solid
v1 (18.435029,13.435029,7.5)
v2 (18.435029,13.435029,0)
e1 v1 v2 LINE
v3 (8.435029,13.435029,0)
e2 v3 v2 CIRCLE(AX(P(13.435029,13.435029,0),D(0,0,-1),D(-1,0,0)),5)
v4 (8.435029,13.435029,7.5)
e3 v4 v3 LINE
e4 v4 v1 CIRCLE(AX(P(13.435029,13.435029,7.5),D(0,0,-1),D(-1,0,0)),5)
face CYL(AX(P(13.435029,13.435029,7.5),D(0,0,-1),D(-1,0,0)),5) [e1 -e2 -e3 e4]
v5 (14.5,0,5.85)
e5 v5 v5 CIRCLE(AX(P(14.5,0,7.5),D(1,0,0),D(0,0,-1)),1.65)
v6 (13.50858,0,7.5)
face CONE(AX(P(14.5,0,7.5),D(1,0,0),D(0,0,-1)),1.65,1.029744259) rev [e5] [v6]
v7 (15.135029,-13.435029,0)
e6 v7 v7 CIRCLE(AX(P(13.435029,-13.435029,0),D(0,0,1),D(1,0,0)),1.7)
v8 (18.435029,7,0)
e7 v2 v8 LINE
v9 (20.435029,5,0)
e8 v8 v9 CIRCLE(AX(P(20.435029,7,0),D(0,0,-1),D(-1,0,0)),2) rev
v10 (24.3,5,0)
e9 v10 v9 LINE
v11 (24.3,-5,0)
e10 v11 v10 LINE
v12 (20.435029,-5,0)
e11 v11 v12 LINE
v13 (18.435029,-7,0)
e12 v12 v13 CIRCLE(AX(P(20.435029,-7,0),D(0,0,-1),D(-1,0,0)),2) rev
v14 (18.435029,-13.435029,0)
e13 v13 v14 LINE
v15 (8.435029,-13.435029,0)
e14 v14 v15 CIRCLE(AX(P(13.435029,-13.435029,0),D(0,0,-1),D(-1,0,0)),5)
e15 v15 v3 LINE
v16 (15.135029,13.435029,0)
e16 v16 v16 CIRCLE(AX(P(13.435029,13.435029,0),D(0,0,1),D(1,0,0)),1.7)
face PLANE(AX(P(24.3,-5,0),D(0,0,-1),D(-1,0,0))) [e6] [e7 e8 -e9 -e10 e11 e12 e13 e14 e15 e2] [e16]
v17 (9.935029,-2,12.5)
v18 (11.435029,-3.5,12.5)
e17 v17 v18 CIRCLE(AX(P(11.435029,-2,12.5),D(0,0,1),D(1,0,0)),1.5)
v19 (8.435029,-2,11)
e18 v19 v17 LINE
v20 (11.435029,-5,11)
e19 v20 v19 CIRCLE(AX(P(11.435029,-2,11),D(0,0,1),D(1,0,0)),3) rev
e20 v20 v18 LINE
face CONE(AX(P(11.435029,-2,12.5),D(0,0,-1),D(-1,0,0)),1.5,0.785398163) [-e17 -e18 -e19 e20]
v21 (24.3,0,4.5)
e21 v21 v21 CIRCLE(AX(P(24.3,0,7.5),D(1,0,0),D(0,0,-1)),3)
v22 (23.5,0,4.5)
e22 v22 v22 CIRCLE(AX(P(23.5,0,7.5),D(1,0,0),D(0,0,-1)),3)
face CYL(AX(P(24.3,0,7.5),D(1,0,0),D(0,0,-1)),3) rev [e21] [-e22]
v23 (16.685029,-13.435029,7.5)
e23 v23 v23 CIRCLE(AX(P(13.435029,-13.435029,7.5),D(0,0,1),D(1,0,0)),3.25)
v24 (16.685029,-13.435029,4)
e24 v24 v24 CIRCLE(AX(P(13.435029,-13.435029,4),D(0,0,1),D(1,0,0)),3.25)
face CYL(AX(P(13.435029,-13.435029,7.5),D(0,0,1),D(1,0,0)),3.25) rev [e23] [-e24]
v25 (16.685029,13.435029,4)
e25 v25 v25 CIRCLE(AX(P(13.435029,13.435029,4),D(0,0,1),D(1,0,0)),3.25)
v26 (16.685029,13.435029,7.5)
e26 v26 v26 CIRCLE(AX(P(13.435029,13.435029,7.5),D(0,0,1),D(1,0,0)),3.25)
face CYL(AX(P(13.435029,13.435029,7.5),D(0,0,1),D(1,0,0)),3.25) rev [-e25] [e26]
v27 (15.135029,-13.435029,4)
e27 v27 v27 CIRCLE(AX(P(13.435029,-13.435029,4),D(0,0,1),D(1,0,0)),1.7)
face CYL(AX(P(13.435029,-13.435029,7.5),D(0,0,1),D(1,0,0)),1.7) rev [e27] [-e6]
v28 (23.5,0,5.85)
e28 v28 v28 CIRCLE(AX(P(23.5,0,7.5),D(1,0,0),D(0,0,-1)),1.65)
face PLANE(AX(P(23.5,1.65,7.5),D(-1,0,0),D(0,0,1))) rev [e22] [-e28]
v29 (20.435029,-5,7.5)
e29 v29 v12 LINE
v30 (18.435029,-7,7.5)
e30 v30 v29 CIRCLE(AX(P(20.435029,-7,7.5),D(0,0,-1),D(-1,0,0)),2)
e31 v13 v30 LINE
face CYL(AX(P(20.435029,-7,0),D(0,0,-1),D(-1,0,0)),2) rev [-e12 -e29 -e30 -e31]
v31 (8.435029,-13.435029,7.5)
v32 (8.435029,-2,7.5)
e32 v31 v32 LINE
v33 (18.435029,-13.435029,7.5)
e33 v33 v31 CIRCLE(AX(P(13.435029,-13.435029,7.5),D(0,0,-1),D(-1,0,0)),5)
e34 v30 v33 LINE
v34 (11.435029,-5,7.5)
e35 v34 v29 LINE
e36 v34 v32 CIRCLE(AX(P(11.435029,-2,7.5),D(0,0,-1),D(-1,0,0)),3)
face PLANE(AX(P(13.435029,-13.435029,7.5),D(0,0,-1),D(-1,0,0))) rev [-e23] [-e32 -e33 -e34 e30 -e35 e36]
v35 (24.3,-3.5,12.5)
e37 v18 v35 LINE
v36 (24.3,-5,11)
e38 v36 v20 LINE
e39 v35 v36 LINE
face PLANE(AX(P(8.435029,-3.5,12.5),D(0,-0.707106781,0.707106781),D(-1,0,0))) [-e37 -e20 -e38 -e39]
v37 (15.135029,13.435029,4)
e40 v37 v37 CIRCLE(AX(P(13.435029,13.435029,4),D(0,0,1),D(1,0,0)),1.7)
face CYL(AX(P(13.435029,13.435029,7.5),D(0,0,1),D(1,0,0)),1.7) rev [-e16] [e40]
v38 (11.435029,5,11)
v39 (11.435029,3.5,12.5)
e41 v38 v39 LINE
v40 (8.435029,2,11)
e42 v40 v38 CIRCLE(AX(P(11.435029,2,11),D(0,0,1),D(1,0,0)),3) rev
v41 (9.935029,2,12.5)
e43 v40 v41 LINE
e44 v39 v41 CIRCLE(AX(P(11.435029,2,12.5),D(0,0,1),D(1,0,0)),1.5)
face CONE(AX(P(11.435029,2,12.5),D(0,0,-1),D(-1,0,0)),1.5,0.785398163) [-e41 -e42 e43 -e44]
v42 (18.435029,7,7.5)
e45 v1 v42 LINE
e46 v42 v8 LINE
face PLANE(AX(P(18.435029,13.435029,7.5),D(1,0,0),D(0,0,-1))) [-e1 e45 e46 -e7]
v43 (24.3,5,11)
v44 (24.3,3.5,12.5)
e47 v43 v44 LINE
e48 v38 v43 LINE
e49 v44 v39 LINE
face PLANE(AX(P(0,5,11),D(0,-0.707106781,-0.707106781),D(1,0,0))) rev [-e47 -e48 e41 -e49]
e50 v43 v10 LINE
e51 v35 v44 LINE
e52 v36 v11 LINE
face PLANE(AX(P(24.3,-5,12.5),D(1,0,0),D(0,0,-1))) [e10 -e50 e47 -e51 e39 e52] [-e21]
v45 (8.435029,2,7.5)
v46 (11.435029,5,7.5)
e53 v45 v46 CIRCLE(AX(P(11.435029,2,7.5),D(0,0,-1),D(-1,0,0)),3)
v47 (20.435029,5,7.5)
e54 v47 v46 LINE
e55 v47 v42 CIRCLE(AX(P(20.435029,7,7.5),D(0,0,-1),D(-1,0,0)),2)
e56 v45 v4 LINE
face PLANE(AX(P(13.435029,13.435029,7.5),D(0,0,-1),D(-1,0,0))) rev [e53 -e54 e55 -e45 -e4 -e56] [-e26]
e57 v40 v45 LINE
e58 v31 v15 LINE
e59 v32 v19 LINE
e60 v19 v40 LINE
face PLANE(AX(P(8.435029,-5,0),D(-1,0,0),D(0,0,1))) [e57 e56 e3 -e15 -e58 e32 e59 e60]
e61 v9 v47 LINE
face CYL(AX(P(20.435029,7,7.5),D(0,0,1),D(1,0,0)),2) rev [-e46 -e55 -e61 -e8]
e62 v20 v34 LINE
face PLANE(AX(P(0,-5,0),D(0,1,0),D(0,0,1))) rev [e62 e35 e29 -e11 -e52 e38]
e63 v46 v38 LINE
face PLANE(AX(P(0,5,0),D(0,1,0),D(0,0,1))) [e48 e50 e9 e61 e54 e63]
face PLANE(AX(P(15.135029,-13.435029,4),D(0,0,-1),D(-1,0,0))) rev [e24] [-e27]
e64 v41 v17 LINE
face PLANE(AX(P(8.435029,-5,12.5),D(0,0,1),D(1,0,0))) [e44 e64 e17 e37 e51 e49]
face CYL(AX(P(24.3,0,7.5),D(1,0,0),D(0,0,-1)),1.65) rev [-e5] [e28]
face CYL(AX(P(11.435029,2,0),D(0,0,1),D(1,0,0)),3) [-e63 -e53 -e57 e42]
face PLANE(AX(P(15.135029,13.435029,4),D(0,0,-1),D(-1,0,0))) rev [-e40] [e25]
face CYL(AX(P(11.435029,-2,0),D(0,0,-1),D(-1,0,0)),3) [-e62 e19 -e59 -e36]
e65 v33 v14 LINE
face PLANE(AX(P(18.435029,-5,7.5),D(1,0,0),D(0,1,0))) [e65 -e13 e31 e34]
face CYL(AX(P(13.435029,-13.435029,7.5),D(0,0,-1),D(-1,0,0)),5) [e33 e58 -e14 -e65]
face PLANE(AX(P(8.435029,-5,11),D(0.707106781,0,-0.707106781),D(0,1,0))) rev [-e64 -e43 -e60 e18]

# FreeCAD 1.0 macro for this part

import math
import FreeCAD as App
import Part
import Sketcher

V = App.Vector
Q = App.Units.Quantity


def edges_at(feature, points):
    """Names of the edges that pass closest to the given points."""
    edges = feature.Shape.Edges
    near = lambda p: min(range(len(edges)), key=lambda i: edges[i].distToShape(Part.Vertex(*p))[0])
    return sorted({f"Edge{near(p) + 1}" for p in points})


def add_polygon(sketch, points):
    """Adds a closed chain of lines whose ends are joined by coincident constraints."""
    first, n = sketch.GeometryCount, len(points)
    for a, b in zip(points, points[1:] + points[:1]):
        sketch.addGeometry(Part.LineSegment(App.Vector(*a, 0), App.Vector(*b, 0)), False)
    for i in range(n):
        sketch.addConstraint(Sketcher.Constraint("Coincident", first + i, 2, first + (i + 1) % n, 1))

doc = App.newDocument("Part")
params = doc.addObject("Spreadsheet::Sheet", "Params")
for row, (alias, value) in enumerate([
    ("sketch1_height", "12.5 mm"),
    ("pad1_length", "10 mm"),
    ("sketch2_radius", "5 mm"),
    ("pad2_length", "7.5 mm"),
    ("sketch3_radius", "5 mm"),
    ("pad3_length", "7.5 mm"),
    ("sketch4_diameter", "3.3 mm"),
    ("hole_diameter", "3.3 mm"),
    ("hole_depth", "9.8 mm"),
    ("hole_cbore_diameter", "6 mm"),
    ("hole_cbore_depth", "0.8 mm"),
    ("sketch5_diameter", "3.4 mm"),
    ("hole2_diameter", "3.4 mm"),
    ("hole2_cbore_diameter", "6.5 mm"),
    ("hole2_cbore_depth", "3.5 mm"),
    ("fillet_radius", "3 mm"),
    ("chamfer_size", "1.5 mm"),
    ("fillet2_radius", "2 mm"),
], start=1):
    params.set(f"A{row}", alias)
    params.set(f"B{row}", "=" + value)
    params.setAlias(f"B{row}", alias)

body = doc.addObject("PartDesign::Body", "Body")

# Sketch on XZ plane
sketch1 = body.newObject("Sketcher::SketchObject", "Sketch")
sketch1.AttachmentSupport = (doc.getObject("XZ_Plane"), [""])
sketch1.MapMode = "FlatFace"
sketch1.AttachmentOffset = App.Placement(V(0, 0, -5), App.Rotation())
add_polygon(sketch1, [(8, 0), (8, 12), (24, 12), (24, 0)])  # lines 0-3
sketch1.addConstraint([
    Sketcher.Constraint("Vertical", 0),
    Sketcher.Constraint("Horizontal", 1),
    Sketcher.Constraint("Vertical", 2),
    Sketcher.Constraint("Horizontal", 3),
    Sketcher.Constraint("PointOnObject", 2, 2, -1),
    Sketcher.Constraint("DistanceY", 0, 1, 0, 2, Q("12.5 mm")),
    Sketcher.Constraint("DistanceX", -1, 1, 1, 2, Q("24.3 mm")),
    Sketcher.Constraint("DistanceX", 1, 1, 1, 2, Q("15.864971 mm")),
])
sketch1.setExpression("Constraints[9]", "Params.sketch1_height")
pad1 = body.newObject("PartDesign::Pad", "Pad")
pad1.Profile = sketch1
pad1.setExpression("Length", "Params.pad1_length")

# Sketch on XY plane
sketch2 = body.newObject("Sketcher::SketchObject", "Sketch001")
sketch2.AttachmentSupport = (doc.getObject("XY_Plane"), [""])
sketch2.MapMode = "FlatFace"
sketch2.addGeometry([
    Part.LineSegment(V(8, -5, 0), V(18, -5, 0)),
    Part.LineSegment(V(18, -5, 0), V(18, -13, 0)),
    Part.ArcOfCircle(Part.Circle(V(13, -13, 0), V(0, 0, 1), 5), math.radians(180), math.radians(360)),
    Part.LineSegment(V(8, -13, 0), V(8, -5, 0)),
], False)
sketch2.addConstraint([
    Sketcher.Constraint("Coincident", 0, 2, 1, 1),
    Sketcher.Constraint("Tangent", 1, 2, 2, 2),
    Sketcher.Constraint("Tangent", 2, 1, 3, 1),
    Sketcher.Constraint("Coincident", 3, 2, 0, 1),
    Sketcher.Constraint("Horizontal", 0),
    Sketcher.Constraint("Vertical", 1),
    Sketcher.Constraint("Vertical", 3),
    Sketcher.Constraint("Radius", 2, Q("5 mm")),
    Sketcher.Constraint("DistanceY", 0, 2, -1, 1, Q("5 mm")),
    Sketcher.Constraint("DistanceY", 1, 2, 1, 1, Q("8.435029 mm")),
    Sketcher.Constraint("DistanceX", -1, 1, 2, 3, Q("13.435029 mm")),
])
sketch2.setExpression("Constraints[7]", "Params.sketch2_radius")
pad2 = body.newObject("PartDesign::Pad", "Pad001")
pad2.Profile = sketch2
pad2.setExpression("Length", "Params.pad2_length")

# Sketch on XY plane
sketch3 = body.newObject("Sketcher::SketchObject", "Sketch002")
sketch3.AttachmentSupport = (doc.getObject("XY_Plane"), [""])
sketch3.MapMode = "FlatFace"
sketch3.addGeometry([
    Part.LineSegment(V(8, 5, 0), V(8, 13, 0)),
    Part.ArcOfCircle(Part.Circle(V(13, 13, 0), V(0, 0, 1), 5), math.radians(0), math.radians(180)),
    Part.LineSegment(V(18, 13, 0), V(18, 5, 0)),
    Part.LineSegment(V(18, 5, 0), V(8, 5, 0)),
], False)
sketch3.addConstraint([
    Sketcher.Constraint("Tangent", 0, 2, 1, 2),
    Sketcher.Constraint("Tangent", 1, 1, 2, 1),
    Sketcher.Constraint("Coincident", 2, 2, 3, 1),
    Sketcher.Constraint("Coincident", 3, 2, 0, 1),
    Sketcher.Constraint("Vertical", 0),
    Sketcher.Constraint("Vertical", 2),
    Sketcher.Constraint("Horizontal", 3),
    Sketcher.Constraint("Radius", 1, Q("5 mm")),
    Sketcher.Constraint("DistanceY", -1, 1, 2, 2, Q("5 mm")),
    Sketcher.Constraint("DistanceY", 0, 1, 0, 2, Q("8.435029 mm")),
    Sketcher.Constraint("DistanceX", -1, 1, 1, 3, Q("13.435029 mm")),
])
sketch3.setExpression("Constraints[7]", "Params.sketch3_radius")
pad3 = body.newObject("PartDesign::Pad", "Pad002")
pad3.Profile = sketch3
pad3.setExpression("Length", "Params.pad3_length")

# Sketch on YZ plane
sketch4 = body.newObject("Sketcher::SketchObject", "Sketch003")
sketch4.AttachmentSupport = (doc.getObject("YZ_Plane"), [""])
sketch4.MapMode = "FlatFace"
sketch4.AttachmentOffset = App.Placement(V(0, 0, 24.3), App.Rotation())
sketch4.addGeometry(Part.Circle(V(0, 7.5, 0), V(0, 0, 1), 1.6), False)
sketch4.addConstraint([
    Sketcher.Constraint("PointOnObject", 0, 3, -2),
    Sketcher.Constraint("Diameter", 0, Q("3.3 mm")),
    Sketcher.Constraint("DistanceY", -1, 1, 0, 3, Q("7.5 mm")),
])
sketch4.setExpression("Constraints[1]", "Params.sketch4_diameter")
doc.recompute()
hole = body.newObject("PartDesign::Hole", "Hole")
hole.Profile = sketch4
hole.ThreadType = "None"
hole.setExpression("Diameter", "Params.hole_diameter")
hole.DepthType = "Dimension"
hole.setExpression("Depth", "Params.hole_depth")
hole.DrillPoint = "Angled"
hole.DrillPointAngle = 118
hole.HoleCutType = "Counterbore"
hole.setExpression("HoleCutDiameter", "Params.hole_cbore_diameter")
hole.setExpression("HoleCutDepth", "Params.hole_cbore_depth")

# Sketch on XY plane
sketch5 = body.newObject("Sketcher::SketchObject", "Sketch004")
sketch5.AttachmentSupport = (doc.getObject("XY_Plane"), [""])
sketch5.MapMode = "FlatFace"
sketch5.AttachmentOffset = App.Placement(V(0, 0, 7.5), App.Rotation())
sketch5.addGeometry([
    Part.Circle(V(13.4, 13.4, 0), V(0, 0, 1), 1.7),
    Part.Circle(V(13.4, -13.4, 0), V(0, 0, 1), 1.7),
], False)
sketch5.addConstraint([
    Sketcher.Constraint("Equal", 0, 1),
    Sketcher.Constraint("Symmetric", 0, 3, 1, 3, -1),
    Sketcher.Constraint("Diameter", 0, Q("3.4 mm")),
    Sketcher.Constraint("DistanceX", -1, 1, 0, 3, Q("13.435029 mm")),
    Sketcher.Constraint("DistanceY", -1, 1, 0, 3, Q("13.435029 mm")),
])
sketch5.setExpression("Constraints[2]", "Params.sketch5_diameter")
doc.recompute()
hole2 = body.newObject("PartDesign::Hole", "Hole001")
hole2.Profile = sketch5
hole2.ThreadType = "None"
hole2.setExpression("Diameter", "Params.hole2_diameter")
hole2.DepthType = "ThroughAll"
hole2.HoleCutType = "Counterbore"
hole2.setExpression("HoleCutDiameter", "Params.hole2_cbore_diameter")
hole2.setExpression("HoleCutDepth", "Params.hole2_cbore_depth")
doc.recompute()

fillet = body.newObject("PartDesign::Fillet", "Fillet")
fillet.Base = (hole2, edges_at(hole2, [(8.435, -5, 10), (8.435, 5, 10)]))
fillet.setExpression("Radius", "Params.fillet_radius")
doc.recompute()

chamfer = body.newObject("PartDesign::Chamfer", "Chamfer")
chamfer.Base = (fillet, edges_at(fillet, [
    (8.435, 0, 12.5),
    (17.868, 5, 12.5),
    (17.868, -5, 12.5),
    (9.314, 4.121, 12.5),
    (9.314, -4.121, 12.5),
]))
chamfer.setExpression("Size", "Params.chamfer_size")
doc.recompute()

fillet2 = body.newObject("PartDesign::Fillet", "Fillet001")
fillet2.Base = (chamfer, edges_at(chamfer, [(18.435, -5, 3.75), (18.435, 5, 3.75)]))
fillet2.setExpression("Radius", "Params.fillet2_radius")

doc.recompute()
